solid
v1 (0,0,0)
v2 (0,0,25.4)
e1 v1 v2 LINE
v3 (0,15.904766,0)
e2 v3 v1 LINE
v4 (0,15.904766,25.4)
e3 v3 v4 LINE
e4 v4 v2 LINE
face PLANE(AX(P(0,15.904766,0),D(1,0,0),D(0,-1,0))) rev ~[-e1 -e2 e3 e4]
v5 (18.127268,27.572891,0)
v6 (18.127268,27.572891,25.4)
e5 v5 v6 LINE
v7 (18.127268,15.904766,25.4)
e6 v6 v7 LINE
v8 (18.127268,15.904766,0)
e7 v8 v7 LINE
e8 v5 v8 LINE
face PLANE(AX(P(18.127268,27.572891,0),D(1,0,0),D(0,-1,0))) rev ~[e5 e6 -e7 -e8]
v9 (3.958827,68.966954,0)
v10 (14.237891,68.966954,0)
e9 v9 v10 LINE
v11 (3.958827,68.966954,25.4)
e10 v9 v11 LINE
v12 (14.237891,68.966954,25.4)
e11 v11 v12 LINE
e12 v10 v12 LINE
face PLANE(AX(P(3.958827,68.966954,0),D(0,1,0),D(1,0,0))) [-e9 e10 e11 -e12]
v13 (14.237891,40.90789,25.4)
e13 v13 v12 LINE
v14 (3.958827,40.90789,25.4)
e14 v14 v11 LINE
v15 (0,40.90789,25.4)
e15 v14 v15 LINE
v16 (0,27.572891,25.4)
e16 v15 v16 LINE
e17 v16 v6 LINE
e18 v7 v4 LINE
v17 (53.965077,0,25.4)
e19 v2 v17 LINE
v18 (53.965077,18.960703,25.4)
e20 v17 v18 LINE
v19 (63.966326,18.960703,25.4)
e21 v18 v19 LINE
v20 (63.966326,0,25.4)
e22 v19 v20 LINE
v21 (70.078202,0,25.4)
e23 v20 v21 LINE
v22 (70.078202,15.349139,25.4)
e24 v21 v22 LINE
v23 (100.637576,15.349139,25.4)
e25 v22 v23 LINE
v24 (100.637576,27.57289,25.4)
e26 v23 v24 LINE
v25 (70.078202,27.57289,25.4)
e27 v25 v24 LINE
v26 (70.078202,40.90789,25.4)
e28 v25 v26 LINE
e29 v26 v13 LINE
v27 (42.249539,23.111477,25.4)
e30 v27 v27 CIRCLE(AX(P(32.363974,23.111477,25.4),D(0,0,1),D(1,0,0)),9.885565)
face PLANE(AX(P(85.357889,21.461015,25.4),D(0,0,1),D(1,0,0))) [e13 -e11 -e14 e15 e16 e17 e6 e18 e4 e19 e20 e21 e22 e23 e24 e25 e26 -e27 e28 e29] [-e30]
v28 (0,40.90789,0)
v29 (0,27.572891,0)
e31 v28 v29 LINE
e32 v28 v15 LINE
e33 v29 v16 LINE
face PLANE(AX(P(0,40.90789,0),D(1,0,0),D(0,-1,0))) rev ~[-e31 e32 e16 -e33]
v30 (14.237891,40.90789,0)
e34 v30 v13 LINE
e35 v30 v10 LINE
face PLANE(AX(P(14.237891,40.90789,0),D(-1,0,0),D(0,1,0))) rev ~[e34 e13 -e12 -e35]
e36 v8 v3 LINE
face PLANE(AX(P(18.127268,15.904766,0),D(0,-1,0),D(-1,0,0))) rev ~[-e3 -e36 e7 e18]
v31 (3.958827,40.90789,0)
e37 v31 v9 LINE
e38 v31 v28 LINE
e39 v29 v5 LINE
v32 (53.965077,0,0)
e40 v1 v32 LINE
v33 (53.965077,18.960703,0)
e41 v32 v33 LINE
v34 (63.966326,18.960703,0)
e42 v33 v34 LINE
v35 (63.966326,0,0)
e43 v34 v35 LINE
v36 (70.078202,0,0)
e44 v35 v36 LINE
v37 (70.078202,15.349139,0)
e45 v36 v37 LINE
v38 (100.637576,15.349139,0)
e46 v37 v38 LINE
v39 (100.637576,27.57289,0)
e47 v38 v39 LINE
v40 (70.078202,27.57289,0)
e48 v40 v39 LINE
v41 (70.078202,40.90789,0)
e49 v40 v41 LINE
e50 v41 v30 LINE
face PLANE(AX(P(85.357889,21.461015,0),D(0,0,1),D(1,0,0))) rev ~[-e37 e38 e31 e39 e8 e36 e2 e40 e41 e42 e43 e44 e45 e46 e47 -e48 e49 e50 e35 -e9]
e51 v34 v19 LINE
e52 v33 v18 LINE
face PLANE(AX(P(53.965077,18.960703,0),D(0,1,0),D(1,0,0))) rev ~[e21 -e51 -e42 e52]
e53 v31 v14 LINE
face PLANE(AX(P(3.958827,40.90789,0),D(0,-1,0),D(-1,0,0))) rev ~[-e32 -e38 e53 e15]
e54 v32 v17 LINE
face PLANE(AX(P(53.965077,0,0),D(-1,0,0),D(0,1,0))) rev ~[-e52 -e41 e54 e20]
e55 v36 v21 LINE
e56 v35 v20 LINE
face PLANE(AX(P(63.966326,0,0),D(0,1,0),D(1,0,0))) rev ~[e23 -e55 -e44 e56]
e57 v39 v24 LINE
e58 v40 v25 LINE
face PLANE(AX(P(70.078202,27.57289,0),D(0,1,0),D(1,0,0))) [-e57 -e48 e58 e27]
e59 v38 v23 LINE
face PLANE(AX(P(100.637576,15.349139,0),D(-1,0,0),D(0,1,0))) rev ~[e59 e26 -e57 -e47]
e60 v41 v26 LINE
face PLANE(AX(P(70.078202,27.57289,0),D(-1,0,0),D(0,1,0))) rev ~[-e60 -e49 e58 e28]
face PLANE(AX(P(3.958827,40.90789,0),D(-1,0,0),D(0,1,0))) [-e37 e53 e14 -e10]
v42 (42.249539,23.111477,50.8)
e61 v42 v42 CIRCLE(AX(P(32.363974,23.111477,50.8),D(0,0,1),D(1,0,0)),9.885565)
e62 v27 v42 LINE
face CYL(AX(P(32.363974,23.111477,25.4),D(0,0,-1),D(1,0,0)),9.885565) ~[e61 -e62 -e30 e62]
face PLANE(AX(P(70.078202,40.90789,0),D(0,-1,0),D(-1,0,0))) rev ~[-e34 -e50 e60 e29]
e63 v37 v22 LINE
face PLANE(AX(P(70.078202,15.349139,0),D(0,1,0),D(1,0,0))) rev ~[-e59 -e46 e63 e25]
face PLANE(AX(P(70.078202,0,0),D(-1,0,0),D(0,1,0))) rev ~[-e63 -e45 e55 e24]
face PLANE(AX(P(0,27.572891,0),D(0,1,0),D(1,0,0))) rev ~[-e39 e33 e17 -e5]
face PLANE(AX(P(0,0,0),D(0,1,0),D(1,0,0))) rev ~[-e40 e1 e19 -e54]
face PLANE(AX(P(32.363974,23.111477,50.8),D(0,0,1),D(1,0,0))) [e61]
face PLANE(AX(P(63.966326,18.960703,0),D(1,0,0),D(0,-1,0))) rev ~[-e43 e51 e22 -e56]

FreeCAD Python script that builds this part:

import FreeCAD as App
import Part
import Sketcher
from FreeCAD import Vector
Q = App.Units.Quantity

doc = App.newDocument("Part")
params = doc.addObject("Spreadsheet::Sheet", "Params")
for row, (alias, value) in enumerate([
    ("sketch1_width", "1.203125 in"),
    ("sketch1_height", "0.525 in"),
    ("pad1_length", "1 in"),
    ("pad2_length", "1 in"),
], start=1):
    params.set(f"A{row}", alias)
    params.set(f"B{row}", "=" + value)
    params.setAlias(f"B{row}", alias)

body = doc.addObject("PartDesign::Body", "Body")

# Sketch on XY plane
sketch1 = body.newObject("Sketcher::SketchObject", "Sketch")
sketch1.AttachmentSupport = (doc.getObject("XY_Plane"), [""])
sketch1.MapMode = "FlatFace"
sketch1.addGeometry(Part.LineSegment(Vector(18.127268, 15.904766, 0), Vector(0, 15.904766, 0)), False)
sketch1.addGeometry(Part.LineSegment(Vector(0, 15.904766, 0), Vector(0, 0, 0)), False)
sketch1.addGeometry(Part.LineSegment(Vector(0, 0, 0), Vector(53.965077, 0, 0)), False)
sketch1.addGeometry(Part.LineSegment(Vector(53.965077, 0, 0), Vector(53.965077, 18.960703, 0)), False)
sketch1.addGeometry(Part.LineSegment(Vector(53.965077, 18.960703, 0), Vector(63.966326, 18.960703, 0)), False)
sketch1.addGeometry(Part.LineSegment(Vector(63.966326, 18.960703, 0), Vector(63.966326, 0, 0)), False)
sketch1.addGeometry(Part.LineSegment(Vector(63.966326, 0, 0), Vector(70.078202, 0, 0)), False)
sketch1.addGeometry(Part.LineSegment(Vector(70.078202, 0, 0), Vector(70.078202, 15.349139, 0)), False)
sketch1.addGeometry(Part.LineSegment(Vector(70.078202, 15.349139, 0), Vector(100.637576, 15.349139, 0)), False)
sketch1.addGeometry(Part.LineSegment(Vector(100.637576, 15.349139, 0), Vector(100.637576, 27.57289, 0)), False)
sketch1.addGeometry(Part.LineSegment(Vector(100.637576, 27.57289, 0), Vector(70.078202, 27.57289, 0)), False)
sketch1.addGeometry(Part.LineSegment(Vector(70.078202, 27.57289, 0), Vector(70.078202, 40.90789, 0)), False)
sketch1.addGeometry(Part.LineSegment(Vector(70.078202, 40.90789, 0), Vector(14.237891, 40.90789, 0)), False)
sketch1.addGeometry(Part.LineSegment(Vector(14.237891, 40.90789, 0), Vector(14.237891, 68.966954, 0)), False)
sketch1.addGeometry(Part.LineSegment(Vector(14.237891, 68.966954, 0), Vector(3.958827, 68.966954, 0)), False)
sketch1.addGeometry(Part.LineSegment(Vector(3.958827, 68.966954, 0), Vector(3.958827, 40.90789, 0)), False)
sketch1.addGeometry(Part.LineSegment(Vector(3.958827, 40.90789, 0), Vector(0, 40.90789, 0)), False)
sketch1.addGeometry(Part.LineSegment(Vector(0, 40.90789, 0), Vector(0, 27.572891, 0)), False)
sketch1.addGeometry(Part.LineSegment(Vector(0, 27.572891, 0), Vector(18.127268, 27.572891, 0)), False)
sketch1.addGeometry(Part.LineSegment(Vector(18.127268, 27.572891, 0), Vector(18.127268, 15.904766, 0)), False)
sketch1.addConstraint(Sketcher.Constraint("Coincident", 0, 2, 1, 1))
sketch1.addConstraint(Sketcher.Constraint("Coincident", 1, 2, 2, 1))
sketch1.addConstraint(Sketcher.Constraint("Coincident", 2, 2, 3, 1))
sketch1.addConstraint(Sketcher.Constraint("Coincident", 3, 2, 4, 1))
sketch1.addConstraint(Sketcher.Constraint("Coincident", 4, 2, 5, 1))
sketch1.addConstraint(Sketcher.Constraint("Coincident", 5, 2, 6, 1))
sketch1.addConstraint(Sketcher.Constraint("Coincident", 6, 2, 7, 1))
sketch1.addConstraint(Sketcher.Constraint("Coincident", 7, 2, 8, 1))
sketch1.addConstraint(Sketcher.Constraint("Coincident", 8, 2, 9, 1))
sketch1.addConstraint(Sketcher.Constraint("Coincident", 9, 2, 10, 1))
sketch1.addConstraint(Sketcher.Constraint("Coincident", 10, 2, 11, 1))
sketch1.addConstraint(Sketcher.Constraint("Coincident", 11, 2, 12, 1))
sketch1.addConstraint(Sketcher.Constraint("Coincident", 12, 2, 13, 1))
sketch1.addConstraint(Sketcher.Constraint("Coincident", 13, 2, 14, 1))
sketch1.addConstraint(Sketcher.Constraint("Coincident", 14, 2, 15, 1))
sketch1.addConstraint(Sketcher.Constraint("Coincident", 15, 2, 16, 1))
sketch1.addConstraint(Sketcher.Constraint("Coincident", 16, 2, 17, 1))
sketch1.addConstraint(Sketcher.Constraint("Coincident", 17, 2, 18, 1))
sketch1.addConstraint(Sketcher.Constraint("Coincident", 18, 2, 19, 1))
sketch1.addConstraint(Sketcher.Constraint("Coincident", 19, 2, 0, 1))
sketch1.addConstraint(Sketcher.Constraint("Horizontal", 0))
sketch1.addConstraint(Sketcher.Constraint("Vertical", 1))
sketch1.addConstraint(Sketcher.Constraint("Horizontal", 2))
sketch1.addConstraint(Sketcher.Constraint("Vertical", 3))
sketch1.addConstraint(Sketcher.Constraint("Horizontal", 4))
sketch1.addConstraint(Sketcher.Constraint("Vertical", 5))
sketch1.addConstraint(Sketcher.Constraint("Horizontal", 6))
sketch1.addConstraint(Sketcher.Constraint("Vertical", 7))
sketch1.addConstraint(Sketcher.Constraint("Horizontal", 8))
sketch1.addConstraint(Sketcher.Constraint("Vertical", 9))
sketch1.addConstraint(Sketcher.Constraint("Horizontal", 10))
sketch1.addConstraint(Sketcher.Constraint("Vertical", 11))
sketch1.addConstraint(Sketcher.Constraint("Horizontal", 12))
sketch1.addConstraint(Sketcher.Constraint("Vertical", 13))
sketch1.addConstraint(Sketcher.Constraint("Horizontal", 14))
sketch1.addConstraint(Sketcher.Constraint("Vertical", 15))
sketch1.addConstraint(Sketcher.Constraint("Horizontal", 16))
sketch1.addConstraint(Sketcher.Constraint("Vertical", 17))
sketch1.addConstraint(Sketcher.Constraint("Horizontal", 18))
sketch1.addConstraint(Sketcher.Constraint("Vertical", 19))
sketch1.addConstraint(Sketcher.Constraint("Coincident", 1, 2, -1, 1))
sketch1.addConstraint(Sketcher.Constraint("PointOnObject", 5, 2, -1))
sketch1.addConstraint(Sketcher.Constraint("PointOnObject", 16, 2, -2))
sketch1.addConstraint(Sketcher.Constraint("Horizontal", 12, 2, 15, 2))
sketch1.addConstraint(Sketcher.Constraint("Horizontal", 10, 2, 17, 2))
sketch1.addConstraint(Sketcher.Constraint("Vertical", 7, 2, 10, 2))
sketch1.addConstraint(Sketcher.Constraint("DistanceX", 8, 1, 8, 2, Q("1.203125 in")))
sketch1.addConstraint(Sketcher.Constraint("DistanceY", 11, 1, 11, 2, Q("0.525 in")))
sketch1.addConstraint(Sketcher.Constraint("DistanceY", 0, 2, 12, 2, Q("0.984375 in")))
sketch1.addConstraint(Sketcher.Constraint("DistanceY", 3, 2, 13, 2, Q("1.9687501 in")))
sketch1.addConstraint(Sketcher.Constraint("DistanceX", 14, 2, 3, 2, Q("1.96875 in")))
sketch1.addConstraint(Sketcher.Constraint("DistanceX", 3, 2, 8, 2, Q("1.8375 in")))
sketch1.addConstraint(Sketcher.Constraint("DistanceX", 0, 2, 0, 1, 18.127268))
sketch1.addConstraint(Sketcher.Constraint("DistanceX", 4, 1, 4, 2, 10.001249))
sketch1.addConstraint(Sketcher.Constraint("DistanceX", 12, 2, 12, 1, 55.840312))
sketch1.addConstraint(Sketcher.Constraint("DistanceY", 7, 1, 7, 2, 15.349139))
sketch1.addConstraint(Sketcher.Constraint("DistanceY", 9, 1, 9, 2, 12.223751))
sketch1.addConstraint(Sketcher.Constraint("DistanceX", 2, 1, 2, 2, 53.965077))
sketch1.addConstraint(Sketcher.Constraint("DistanceY", 3, 1, 3, 2, 18.960703))
sketch1.setExpression("Constraints[46]", "Params.sketch1_width")
sketch1.setExpression("Constraints[47]", "Params.sketch1_height")
pad1 = body.newObject("PartDesign::Pad", "Pad")
pad1.Profile = sketch1
pad1.setExpression("Length", "Params.pad1_length")

# Sketch on XY plane
sketch2 = body.newObject("Sketcher::SketchObject", "Sketch001")
sketch2.AttachmentSupport = (doc.getObject("XY_Plane"), [""])
sketch2.MapMode = "FlatFace"
sketch2.AttachmentOffset = App.Placement(Vector(0, 0, 1 * 25.4), App.Rotation())
sketch2.addGeometry(Part.Circle(Vector(32.363974, 23.111477, 0), Vector(0, 0, 1), 9.885565), False)
sketch2.addConstraint(Sketcher.Constraint("Diameter", 0, 19.77113))
sketch2.addConstraint(Sketcher.Constraint("DistanceX", -1, 1, 0, 3, 32.363974))
sketch2.addConstraint(Sketcher.Constraint("DistanceY", -1, 1, 0, 3, 23.111477))
pad2 = body.newObject("PartDesign::Pad", "Pad001")
pad2.Profile = sketch2
pad2.setExpression("Length", "Params.pad2_length")

doc.recompute()
